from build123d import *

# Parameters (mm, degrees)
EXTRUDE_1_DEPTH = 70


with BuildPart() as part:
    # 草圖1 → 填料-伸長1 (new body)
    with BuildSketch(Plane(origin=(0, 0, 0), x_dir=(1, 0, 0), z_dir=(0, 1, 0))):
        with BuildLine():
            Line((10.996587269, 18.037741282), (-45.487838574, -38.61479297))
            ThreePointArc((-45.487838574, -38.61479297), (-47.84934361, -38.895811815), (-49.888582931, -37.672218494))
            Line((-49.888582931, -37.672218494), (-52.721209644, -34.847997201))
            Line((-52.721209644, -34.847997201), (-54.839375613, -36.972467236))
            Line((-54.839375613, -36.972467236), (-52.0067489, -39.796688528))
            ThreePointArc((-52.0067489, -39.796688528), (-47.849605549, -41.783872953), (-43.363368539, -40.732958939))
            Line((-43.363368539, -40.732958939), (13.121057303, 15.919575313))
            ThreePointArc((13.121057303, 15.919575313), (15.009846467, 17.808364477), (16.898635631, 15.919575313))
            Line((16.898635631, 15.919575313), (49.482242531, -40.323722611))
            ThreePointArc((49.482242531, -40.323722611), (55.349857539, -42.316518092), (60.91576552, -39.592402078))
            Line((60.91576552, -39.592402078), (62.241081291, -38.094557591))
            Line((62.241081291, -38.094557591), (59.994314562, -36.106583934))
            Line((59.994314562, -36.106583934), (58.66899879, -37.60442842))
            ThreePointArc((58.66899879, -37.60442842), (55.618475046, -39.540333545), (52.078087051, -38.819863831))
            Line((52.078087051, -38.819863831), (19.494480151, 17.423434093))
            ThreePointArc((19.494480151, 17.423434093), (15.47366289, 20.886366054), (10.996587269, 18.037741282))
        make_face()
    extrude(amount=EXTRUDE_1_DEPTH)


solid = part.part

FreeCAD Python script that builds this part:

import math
import FreeCAD as App
import Part
import Sketcher
from FreeCAD import Vector

doc = App.newDocument("Part")
body = doc.addObject("PartDesign::Body", "Body")

sketch1 = doc.addObject("Sketcher::SketchObject", "Sketch")
body.addObject(sketch1)
sketch1.AttachmentSupport = (doc.XZ_Plane, [""])
sketch1.MapMode = "FlatFace"
sketch1.addGeometry([
    Part.LineSegment(Vector(10.996587, -18.037741, 0), Vector(-45.487839, 38.614793, 0)),
    Part.ArcOfCircle(Part.Circle(Vector(-47.079558, 35.301795, 0), Vector(0, 0, 1), 3.675531), math.radians(64.338191), math.radians(139.840315)),
    Part.LineSegment(Vector(-49.888583, 37.672218, 0), Vector(-52.72121, 34.847997, 0)),
    Part.LineSegment(Vector(-52.72121, 34.847997, 0), Vector(-54.839376, 36.972467, 0)),
    Part.LineSegment(Vector(-54.839376, 36.972467, 0), Vector(-52.006749, 39.796689, 0)),
    Part.ArcOfCircle(Part.Circle(Vector(-47.101411, 34.876751, 0), Vector(0, 0, 1), 6.947527), math.radians(57.44974), math.radians(134.914865)),
    Part.LineSegment(Vector(-43.363369, 40.732959, 0), Vector(13.121057, -15.919575, 0)),
    Part.ArcOfCircle(Part.Circle(Vector(15.009846, -15.919575, 0), Vector(0, 0, 1), 1.888789), math.radians(180), math.radians(360)),
    Part.LineSegment(Vector(16.898636, -15.919575, 0), Vector(49.482243, 40.323723, 0)),
    Part.ArcOfCircle(Part.Circle(Vector(54.831261, 34.208739, 0), Vector(0, 0, 1), 8.124347), math.radians(41.502895), math.radians(131.177476)),
    Part.LineSegment(Vector(60.915766, 39.592402, 0), Vector(62.241081, 38.094558, 0)),
    Part.LineSegment(Vector(62.241081, 38.094558, 0), Vector(59.994315, 36.106584, 0)),
    Part.LineSegment(Vector(59.994315, 36.106584, 0), Vector(58.668999, 37.604428, 0)),
    Part.ArcOfCircle(Part.Circle(Vector(54.742084, 34.78795, 0), Vector(0, 0, 1), 4.832516), math.radians(35.649005), math.radians(123.453846)),
    Part.LineSegment(Vector(52.078087, 38.819864, 0), Vector(19.49448, -17.423434, 0)),
    Part.ArcOfCircle(Part.Circle(Vector(15.152822, -16.448082, 0), Vector(0, 0, 1), 4.449866), math.radians(-159.069354), math.radians(-12.66128)),
], False)
sketch1.addConstraint([
    Sketcher.Constraint("Coincident", 0, 2, 1, 1),
    Sketcher.Constraint("Coincident", 1, 2, 2, 1),
    Sketcher.Constraint("Coincident", 2, 2, 3, 1),
    Sketcher.Constraint("Coincident", 3, 2, 4, 1),
    Sketcher.Constraint("Coincident", 4, 2, 5, 2),
    Sketcher.Constraint("Coincident", 5, 1, 6, 1),
    Sketcher.Constraint("Coincident", 6, 2, 7, 1),
    Sketcher.Constraint("Coincident", 7, 2, 8, 1),
    Sketcher.Constraint("Coincident", 8, 2, 9, 2),
    Sketcher.Constraint("Coincident", 9, 1, 10, 1),
    Sketcher.Constraint("Coincident", 10, 2, 11, 1),
    Sketcher.Constraint("Coincident", 11, 2, 12, 1),
    Sketcher.Constraint("Coincident", 12, 2, 13, 1),
    Sketcher.Constraint("Coincident", 13, 2, 14, 1),
    Sketcher.Constraint("Coincident", 14, 2, 15, 2),
    Sketcher.Constraint("Coincident", 15, 1, 0, 1),
    Sketcher.Constraint("Distance", 0, 80.0),
    Sketcher.Constraint("Distance", 2, 4.0),
    Sketcher.Constraint("Distance", 3, 3.0),
    Sketcher.Constraint("Distance", 4, 4.0),
    Sketcher.Constraint("Distance", 6, 80.0),
    Sketcher.Constraint("Distance", 8, 65.0),
    Sketcher.Constraint("Distance", 10, 2.0),
    Sketcher.Constraint("Distance", 11, 3.0),
    Sketcher.Constraint("Distance", 12, 2.0),
    Sketcher.Constraint("Distance", 14, 65.0),
    Sketcher.Constraint("Radius", 1, 3.675531),
    Sketcher.Constraint("Radius", 7, 1.888789),
    Sketcher.Constraint("DistanceX", -1, 1, 12, 2, 58.668999),
    Sketcher.Constraint("Radius", 5, 6.947527),
    Sketcher.Constraint("Radius", 9, 8.124347),
    Sketcher.Constraint("Radius", 13, 4.832516),
    Sketcher.Constraint("Radius", 15, 4.449866),
    Sketcher.Constraint("DistanceY", 1, 3, 0, 2, 3.312998),
    Sketcher.Constraint("DistanceY", 13, 3, 5, 3, 0.088801),
    Sketcher.Constraint("DistanceY", 15, 3, 1, 2, 54.1203),
    Sketcher.Constraint("DistanceX", 2, 2, 5, 3, 5.619799),
    Sketcher.Constraint("DistanceX", 1, 3, -1, 1, 47.079558),
    Sketcher.Constraint("DistanceX", 5, 3, -1, 1, 47.101411),
    Sketcher.Constraint("DistanceY", -1, 1, 5, 3, 34.876751),
    Sketcher.Constraint("DistanceX", -1, 1, 9, 3, 54.831261),
    Sketcher.Constraint("DistanceY", -1, 1, 9, 3, 34.208739),
    Sketcher.Constraint("DistanceY", 15, 3, -1, 1, 16.448082),
    Sketcher.Constraint("DistanceX", 4, 2, -1, 1, 52.006749),
    Sketcher.Constraint("DistanceX", 5, 1, -1, 1, 43.363369),
    Sketcher.Constraint("DistanceX", -1, 1, 10, 2, 62.241081),
    Sketcher.Constraint("DistanceY", -1, 1, 12, 2, 37.604428),
    Sketcher.Constraint("DistanceX", -1, 1, 14, 2, 19.49448),
    Sketcher.Constraint("DistanceY", 15, 1, -1, 1, 18.037741),
    Sketcher.Constraint("DistanceY", 7, 3, 1, 3, 51.22137),
    Sketcher.Constraint("DistanceX", 15, 3, 9, 3, 39.678439),
    Sketcher.Constraint("DistanceX", 1, 2, 7, 3, 64.898429),
    Sketcher.Constraint("DistanceX", 8, 2, 13, 3, 5.259842),
    Sketcher.Constraint("DistanceX", 13, 3, 9, 1, 6.173681),
])
pad1 = doc.addObject("PartDesign::Pad", "Pad")
body.addObject(pad1)
pad1.Profile = sketch1
pad1.Length = 70
pad1.Reversed = True

doc.recompute()
